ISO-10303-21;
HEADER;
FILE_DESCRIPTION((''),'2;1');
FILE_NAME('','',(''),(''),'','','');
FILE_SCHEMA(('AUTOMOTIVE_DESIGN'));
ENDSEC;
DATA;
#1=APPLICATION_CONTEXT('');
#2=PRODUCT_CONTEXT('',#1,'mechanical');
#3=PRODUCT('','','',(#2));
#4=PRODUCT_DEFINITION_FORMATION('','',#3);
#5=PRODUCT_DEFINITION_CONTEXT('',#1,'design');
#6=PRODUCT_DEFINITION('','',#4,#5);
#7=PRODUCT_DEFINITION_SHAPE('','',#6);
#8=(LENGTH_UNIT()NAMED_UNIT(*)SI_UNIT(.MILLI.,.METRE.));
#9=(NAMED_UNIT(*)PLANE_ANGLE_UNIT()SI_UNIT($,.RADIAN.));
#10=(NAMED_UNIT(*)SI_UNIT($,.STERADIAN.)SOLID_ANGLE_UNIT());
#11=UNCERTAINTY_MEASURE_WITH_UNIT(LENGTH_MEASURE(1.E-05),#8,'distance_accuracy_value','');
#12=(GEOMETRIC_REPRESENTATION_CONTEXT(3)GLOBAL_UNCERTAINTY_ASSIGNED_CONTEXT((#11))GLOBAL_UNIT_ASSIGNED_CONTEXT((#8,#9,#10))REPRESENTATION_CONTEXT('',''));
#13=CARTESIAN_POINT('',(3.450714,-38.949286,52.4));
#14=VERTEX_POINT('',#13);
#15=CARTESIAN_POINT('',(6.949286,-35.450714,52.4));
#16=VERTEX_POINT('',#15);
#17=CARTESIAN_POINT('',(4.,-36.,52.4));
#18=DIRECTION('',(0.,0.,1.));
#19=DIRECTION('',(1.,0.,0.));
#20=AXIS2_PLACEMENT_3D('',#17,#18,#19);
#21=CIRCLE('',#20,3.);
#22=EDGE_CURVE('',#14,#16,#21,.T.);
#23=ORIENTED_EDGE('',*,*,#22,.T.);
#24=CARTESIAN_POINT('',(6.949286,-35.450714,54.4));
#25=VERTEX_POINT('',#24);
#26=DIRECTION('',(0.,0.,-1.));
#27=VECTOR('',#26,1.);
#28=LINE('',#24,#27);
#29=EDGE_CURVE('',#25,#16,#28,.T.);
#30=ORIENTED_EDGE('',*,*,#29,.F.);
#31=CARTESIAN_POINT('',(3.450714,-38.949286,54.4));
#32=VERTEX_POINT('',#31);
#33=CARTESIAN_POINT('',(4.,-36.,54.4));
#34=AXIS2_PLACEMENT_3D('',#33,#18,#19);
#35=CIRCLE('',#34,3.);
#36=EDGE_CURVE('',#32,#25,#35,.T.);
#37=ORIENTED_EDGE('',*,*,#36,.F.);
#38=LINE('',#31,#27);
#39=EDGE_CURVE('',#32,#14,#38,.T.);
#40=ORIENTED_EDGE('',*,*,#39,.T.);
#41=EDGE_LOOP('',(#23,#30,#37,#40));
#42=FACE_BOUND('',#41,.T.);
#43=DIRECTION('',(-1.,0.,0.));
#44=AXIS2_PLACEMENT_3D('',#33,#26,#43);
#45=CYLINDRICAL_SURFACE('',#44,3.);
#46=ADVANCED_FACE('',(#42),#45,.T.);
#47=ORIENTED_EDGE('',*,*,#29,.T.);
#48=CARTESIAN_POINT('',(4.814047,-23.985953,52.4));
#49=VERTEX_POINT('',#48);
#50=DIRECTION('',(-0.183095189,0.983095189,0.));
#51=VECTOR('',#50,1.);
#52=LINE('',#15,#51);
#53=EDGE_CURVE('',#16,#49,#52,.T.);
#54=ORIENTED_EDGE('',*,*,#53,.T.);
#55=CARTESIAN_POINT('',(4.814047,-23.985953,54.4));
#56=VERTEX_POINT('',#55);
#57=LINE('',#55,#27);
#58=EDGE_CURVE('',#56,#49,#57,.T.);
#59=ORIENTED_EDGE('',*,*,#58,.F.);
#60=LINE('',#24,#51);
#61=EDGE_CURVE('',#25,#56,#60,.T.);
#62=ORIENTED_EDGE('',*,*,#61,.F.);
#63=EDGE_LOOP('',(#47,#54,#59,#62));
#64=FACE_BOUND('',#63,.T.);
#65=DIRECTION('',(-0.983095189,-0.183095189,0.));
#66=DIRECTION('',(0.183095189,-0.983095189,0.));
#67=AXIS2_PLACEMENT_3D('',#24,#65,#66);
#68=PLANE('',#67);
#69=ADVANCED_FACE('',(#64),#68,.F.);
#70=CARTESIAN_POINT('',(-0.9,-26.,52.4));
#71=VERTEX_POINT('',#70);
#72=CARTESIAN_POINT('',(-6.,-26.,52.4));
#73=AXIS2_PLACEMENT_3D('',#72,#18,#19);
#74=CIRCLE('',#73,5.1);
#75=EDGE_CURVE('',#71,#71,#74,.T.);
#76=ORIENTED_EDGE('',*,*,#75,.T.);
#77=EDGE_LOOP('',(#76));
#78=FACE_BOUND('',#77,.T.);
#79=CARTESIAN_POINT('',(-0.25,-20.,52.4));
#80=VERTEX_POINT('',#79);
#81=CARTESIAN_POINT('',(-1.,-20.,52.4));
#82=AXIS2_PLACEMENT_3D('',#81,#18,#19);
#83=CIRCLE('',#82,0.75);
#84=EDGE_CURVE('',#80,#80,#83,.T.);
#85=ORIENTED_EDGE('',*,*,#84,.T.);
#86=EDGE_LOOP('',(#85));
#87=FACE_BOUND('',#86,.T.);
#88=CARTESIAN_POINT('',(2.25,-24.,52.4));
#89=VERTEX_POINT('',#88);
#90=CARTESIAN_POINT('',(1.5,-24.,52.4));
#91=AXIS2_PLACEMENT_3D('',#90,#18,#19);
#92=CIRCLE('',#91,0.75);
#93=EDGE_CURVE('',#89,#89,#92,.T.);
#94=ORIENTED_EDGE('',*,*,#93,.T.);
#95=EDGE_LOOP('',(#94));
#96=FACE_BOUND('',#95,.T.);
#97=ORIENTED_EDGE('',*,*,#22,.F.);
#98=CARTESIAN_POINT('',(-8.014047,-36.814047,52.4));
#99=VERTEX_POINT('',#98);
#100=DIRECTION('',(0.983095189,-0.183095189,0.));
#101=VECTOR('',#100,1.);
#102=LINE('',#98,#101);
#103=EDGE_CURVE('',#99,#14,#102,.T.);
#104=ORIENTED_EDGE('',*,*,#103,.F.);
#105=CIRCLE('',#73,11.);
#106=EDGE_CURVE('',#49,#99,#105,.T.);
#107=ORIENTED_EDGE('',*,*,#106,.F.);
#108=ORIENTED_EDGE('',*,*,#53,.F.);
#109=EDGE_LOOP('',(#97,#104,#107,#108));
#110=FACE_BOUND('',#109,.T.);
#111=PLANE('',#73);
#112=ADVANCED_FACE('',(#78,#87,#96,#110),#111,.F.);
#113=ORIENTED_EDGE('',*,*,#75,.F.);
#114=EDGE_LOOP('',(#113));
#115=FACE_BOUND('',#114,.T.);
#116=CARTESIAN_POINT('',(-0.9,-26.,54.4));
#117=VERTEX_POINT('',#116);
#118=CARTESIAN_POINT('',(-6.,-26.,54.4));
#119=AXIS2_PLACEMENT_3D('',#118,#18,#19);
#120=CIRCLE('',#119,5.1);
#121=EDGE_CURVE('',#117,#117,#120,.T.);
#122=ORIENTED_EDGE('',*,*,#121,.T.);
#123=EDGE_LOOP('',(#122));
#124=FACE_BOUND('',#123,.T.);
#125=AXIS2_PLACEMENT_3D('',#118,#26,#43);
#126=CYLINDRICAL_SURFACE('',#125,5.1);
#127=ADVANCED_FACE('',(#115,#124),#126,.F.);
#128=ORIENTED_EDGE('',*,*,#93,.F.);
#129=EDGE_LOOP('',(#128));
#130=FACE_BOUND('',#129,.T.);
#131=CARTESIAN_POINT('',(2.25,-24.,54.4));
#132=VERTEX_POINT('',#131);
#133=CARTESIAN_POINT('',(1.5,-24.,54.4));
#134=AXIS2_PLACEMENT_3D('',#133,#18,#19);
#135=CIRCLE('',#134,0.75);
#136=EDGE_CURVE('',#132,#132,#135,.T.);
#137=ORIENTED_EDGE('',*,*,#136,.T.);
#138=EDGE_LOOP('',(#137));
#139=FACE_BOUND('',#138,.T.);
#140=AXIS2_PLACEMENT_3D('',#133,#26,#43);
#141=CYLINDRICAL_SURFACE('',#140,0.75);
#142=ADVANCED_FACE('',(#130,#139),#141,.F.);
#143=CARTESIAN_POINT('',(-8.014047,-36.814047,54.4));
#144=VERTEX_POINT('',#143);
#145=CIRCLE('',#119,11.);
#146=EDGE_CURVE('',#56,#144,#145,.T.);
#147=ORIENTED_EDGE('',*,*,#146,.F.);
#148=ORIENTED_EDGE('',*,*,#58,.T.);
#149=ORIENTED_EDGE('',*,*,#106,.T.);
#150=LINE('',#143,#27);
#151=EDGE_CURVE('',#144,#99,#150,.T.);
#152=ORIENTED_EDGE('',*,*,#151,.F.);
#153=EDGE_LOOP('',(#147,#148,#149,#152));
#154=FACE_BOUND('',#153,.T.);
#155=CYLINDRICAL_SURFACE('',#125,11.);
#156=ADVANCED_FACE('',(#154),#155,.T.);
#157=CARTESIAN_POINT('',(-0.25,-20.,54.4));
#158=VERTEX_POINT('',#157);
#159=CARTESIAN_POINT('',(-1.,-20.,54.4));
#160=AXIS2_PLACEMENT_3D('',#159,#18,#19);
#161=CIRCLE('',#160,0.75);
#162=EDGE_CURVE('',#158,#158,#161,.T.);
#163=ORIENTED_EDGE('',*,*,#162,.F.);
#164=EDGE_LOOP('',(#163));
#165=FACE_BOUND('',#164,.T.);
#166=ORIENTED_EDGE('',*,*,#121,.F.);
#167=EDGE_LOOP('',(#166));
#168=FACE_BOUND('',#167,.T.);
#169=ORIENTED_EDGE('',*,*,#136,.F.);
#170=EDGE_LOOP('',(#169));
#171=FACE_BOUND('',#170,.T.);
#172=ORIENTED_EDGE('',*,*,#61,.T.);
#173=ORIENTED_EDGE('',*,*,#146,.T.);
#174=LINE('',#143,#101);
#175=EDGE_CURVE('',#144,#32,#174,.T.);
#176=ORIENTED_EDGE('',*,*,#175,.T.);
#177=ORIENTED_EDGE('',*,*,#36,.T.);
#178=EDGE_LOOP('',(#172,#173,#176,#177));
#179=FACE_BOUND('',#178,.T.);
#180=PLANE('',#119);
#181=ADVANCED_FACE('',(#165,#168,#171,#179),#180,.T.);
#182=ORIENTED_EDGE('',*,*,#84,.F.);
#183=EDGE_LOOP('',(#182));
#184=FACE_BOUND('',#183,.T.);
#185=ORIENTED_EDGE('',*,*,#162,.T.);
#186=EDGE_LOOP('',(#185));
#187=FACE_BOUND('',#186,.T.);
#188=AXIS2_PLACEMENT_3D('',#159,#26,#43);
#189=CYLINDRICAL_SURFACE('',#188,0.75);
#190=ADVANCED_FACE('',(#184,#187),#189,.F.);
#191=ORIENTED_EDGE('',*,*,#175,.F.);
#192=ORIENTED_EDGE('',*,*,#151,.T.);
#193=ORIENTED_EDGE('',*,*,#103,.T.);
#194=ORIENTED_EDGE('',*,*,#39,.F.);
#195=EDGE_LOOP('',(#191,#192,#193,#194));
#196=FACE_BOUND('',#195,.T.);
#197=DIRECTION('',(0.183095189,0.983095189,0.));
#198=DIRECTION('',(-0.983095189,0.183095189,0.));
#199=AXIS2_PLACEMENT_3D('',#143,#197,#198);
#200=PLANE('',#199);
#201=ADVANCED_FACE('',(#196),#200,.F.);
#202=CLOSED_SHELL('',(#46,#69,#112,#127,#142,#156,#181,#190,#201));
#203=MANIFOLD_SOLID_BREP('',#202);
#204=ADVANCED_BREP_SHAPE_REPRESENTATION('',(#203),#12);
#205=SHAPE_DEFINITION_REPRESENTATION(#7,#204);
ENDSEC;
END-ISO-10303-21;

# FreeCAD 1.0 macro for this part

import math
import FreeCAD as App
import Part
import Sketcher

V = App.Vector

doc = App.newDocument("Part")
body = doc.addObject("PartDesign::Body", "Body")

# Sketch on XY plane
sketch1 = doc.addObject("Sketcher::SketchObject", "Sketch")
body.addObject(sketch1)
sketch1.AttachmentSupport = (doc.XY_Plane, [""])
sketch1.MapMode = "FlatFace"
sketch1.AttachmentOffset = App.Placement(V(0, 0, 52.4), App.Rotation())
sketch1.addGeometry([
    Part.LineSegment(V(-8, -36.8, 0), V(3.5, -38.9, 0)),  # 0
    Part.ArcOfCircle(Part.Circle(V(4, -36, 0), V(0, 0, 1), 3), math.radians(-101), math.radians(11)),  # 1
    Part.LineSegment(V(6.9, -35.5, 0), V(4.8, -24, 0)),  # 2
    Part.ArcOfCircle(Part.Circle(V(-6, -26, 0), V(0, 0, 1), 11), math.radians(11), math.radians(259)),  # 3
    Part.Circle(V(-6, -26, 0), V(0, 0, 1), 5.1),  # 4
    Part.Circle(V(1.5, -24, 0), V(0, 0, 1), 0.8),  # 5
    Part.Circle(V(-1, -20, 0), V(0, 0, 1), 0.8),  # 6
], False)
sketch1.addConstraint([
    Sketcher.Constraint("Tangent", 0, 2, 1, 1),
    Sketcher.Constraint("Tangent", 1, 2, 2, 1),
    Sketcher.Constraint("Tangent", 2, 2, 3, 1),
    Sketcher.Constraint("Tangent", 3, 2, 0, 1),
    Sketcher.Constraint("Coincident", 4, 3, 3, 3),
    Sketcher.Constraint("Equal", 5, 6),
    Sketcher.Constraint("Radius", 1, 3.0),
    Sketcher.Constraint("Radius", 3, 11.0),
    Sketcher.Constraint("Diameter", 4, 10.2),
    Sketcher.Constraint("Diameter", 5, 1.5),
    Sketcher.Constraint("DistanceX", -1, 1, 1, 3, 4.0),
    Sketcher.Constraint("DistanceY", 1, 3, -1, 1, 36.0),
    Sketcher.Constraint("DistanceX", 3, 3, -1, 1, 6.0),
    Sketcher.Constraint("DistanceY", 3, 3, -1, 1, 26.0),
    Sketcher.Constraint("DistanceY", 5, 3, -1, 1, 24.0),
    Sketcher.Constraint("DistanceX", 6, 3, -1, 1, 1.0),
    Sketcher.Constraint("DistanceY", 6, 3, -1, 1, 20.0),
    Sketcher.Constraint("DistanceX", -1, 1, 5, 3, 1.5),
])
pad1 = doc.addObject("PartDesign::Pad", "Pad")
body.addObject(pad1)
pad1.Profile = sketch1
pad1.Length = 2

doc.recompute()
